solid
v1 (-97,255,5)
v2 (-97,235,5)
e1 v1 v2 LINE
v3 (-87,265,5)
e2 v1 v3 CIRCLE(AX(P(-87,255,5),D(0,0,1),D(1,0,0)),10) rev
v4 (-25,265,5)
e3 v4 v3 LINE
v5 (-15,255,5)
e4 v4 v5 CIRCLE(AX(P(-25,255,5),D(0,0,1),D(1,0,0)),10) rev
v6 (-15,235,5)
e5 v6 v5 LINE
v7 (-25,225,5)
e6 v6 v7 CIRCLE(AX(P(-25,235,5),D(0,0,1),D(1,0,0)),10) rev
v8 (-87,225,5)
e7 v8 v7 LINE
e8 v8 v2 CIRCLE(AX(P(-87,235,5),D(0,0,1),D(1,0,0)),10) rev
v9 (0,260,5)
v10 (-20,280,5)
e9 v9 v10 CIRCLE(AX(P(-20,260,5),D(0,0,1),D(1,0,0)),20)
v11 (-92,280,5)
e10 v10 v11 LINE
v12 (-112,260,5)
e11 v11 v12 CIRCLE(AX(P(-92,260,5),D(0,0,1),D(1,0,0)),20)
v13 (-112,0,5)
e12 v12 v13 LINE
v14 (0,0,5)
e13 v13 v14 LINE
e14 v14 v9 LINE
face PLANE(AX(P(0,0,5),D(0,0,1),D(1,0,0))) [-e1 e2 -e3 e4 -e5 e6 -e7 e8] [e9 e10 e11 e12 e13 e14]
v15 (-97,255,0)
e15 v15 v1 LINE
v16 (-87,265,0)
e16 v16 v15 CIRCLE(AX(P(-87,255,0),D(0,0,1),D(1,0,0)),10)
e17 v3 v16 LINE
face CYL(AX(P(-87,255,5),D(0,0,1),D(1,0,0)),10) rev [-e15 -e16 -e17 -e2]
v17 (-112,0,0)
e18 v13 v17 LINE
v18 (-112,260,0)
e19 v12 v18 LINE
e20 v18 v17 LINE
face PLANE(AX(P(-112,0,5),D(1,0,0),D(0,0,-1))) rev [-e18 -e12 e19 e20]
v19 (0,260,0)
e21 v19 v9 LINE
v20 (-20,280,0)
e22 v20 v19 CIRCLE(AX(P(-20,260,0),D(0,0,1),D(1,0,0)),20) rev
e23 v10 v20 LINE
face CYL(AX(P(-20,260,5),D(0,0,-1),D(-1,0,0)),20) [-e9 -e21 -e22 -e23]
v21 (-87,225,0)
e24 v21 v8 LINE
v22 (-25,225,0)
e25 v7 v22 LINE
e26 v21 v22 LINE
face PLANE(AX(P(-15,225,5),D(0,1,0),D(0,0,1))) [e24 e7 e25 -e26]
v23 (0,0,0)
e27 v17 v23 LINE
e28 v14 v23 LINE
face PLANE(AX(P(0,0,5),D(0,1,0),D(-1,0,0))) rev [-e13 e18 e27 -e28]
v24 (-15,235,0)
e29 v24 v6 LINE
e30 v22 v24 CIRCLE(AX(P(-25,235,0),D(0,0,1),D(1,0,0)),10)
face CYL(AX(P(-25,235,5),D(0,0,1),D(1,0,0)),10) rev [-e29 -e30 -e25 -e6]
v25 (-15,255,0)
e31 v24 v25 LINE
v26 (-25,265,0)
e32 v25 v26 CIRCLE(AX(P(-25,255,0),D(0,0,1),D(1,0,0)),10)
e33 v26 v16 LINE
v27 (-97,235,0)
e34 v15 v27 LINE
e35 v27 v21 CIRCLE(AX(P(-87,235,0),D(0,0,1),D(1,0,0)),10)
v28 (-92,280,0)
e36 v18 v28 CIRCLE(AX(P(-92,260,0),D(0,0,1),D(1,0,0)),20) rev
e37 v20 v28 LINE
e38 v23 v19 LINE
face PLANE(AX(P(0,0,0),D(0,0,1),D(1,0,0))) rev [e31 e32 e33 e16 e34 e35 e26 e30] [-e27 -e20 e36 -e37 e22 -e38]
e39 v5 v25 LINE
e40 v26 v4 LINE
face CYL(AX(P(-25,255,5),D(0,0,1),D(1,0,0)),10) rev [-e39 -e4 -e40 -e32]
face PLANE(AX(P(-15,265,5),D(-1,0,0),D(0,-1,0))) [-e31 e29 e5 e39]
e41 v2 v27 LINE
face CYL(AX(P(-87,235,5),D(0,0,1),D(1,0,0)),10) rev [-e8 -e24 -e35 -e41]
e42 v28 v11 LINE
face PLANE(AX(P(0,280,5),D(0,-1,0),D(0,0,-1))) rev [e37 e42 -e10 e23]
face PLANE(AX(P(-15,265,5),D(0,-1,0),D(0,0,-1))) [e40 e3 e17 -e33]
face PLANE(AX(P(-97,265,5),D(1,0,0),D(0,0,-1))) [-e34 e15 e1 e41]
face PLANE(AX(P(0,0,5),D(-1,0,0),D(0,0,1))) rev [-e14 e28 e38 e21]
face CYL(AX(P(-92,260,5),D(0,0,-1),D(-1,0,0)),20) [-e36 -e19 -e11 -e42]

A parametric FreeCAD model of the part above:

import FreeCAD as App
import Part
import Sketcher
from FreeCAD import Vector


def edges_at(feature, points):
    """Names of the edges that pass closest to the given points."""
    edges = feature.Shape.Edges
    near = lambda p: min(range(len(edges)), key=lambda i: edges[i].distToShape(Part.Vertex(*p))[0])
    return sorted({f"Edge{near(p) + 1}" for p in points})

doc = App.newDocument("Part")
body = doc.addObject("PartDesign::Body", "Body")

# Sketch on XY plane
sketch1 = body.newObject("Sketcher::SketchObject", "Sketch")
sketch1.AttachmentSupport = (doc.getObject("XY_Plane"), [""])
sketch1.MapMode = "FlatFace"
sketch1.addGeometry([
    Part.LineSegment(Vector(-112, 280, 0), Vector(-112, 0, 0)),  # 0
    Part.LineSegment(Vector(-112, 0, 0), Vector(0, 0, 0)),  # 1
    Part.LineSegment(Vector(0, 0, 0), Vector(0, 280, 0)),  # 2
    Part.LineSegment(Vector(0, 280, 0), Vector(-112, 280, 0)),  # 3
    Part.LineSegment(Vector(-15, 225, 0), Vector(-97, 225, 0)),  # 4
    Part.LineSegment(Vector(-97, 225, 0), Vector(-97, 265, 0)),  # 5
    Part.LineSegment(Vector(-97, 265, 0), Vector(-15, 265, 0)),  # 6
    Part.LineSegment(Vector(-15, 265, 0), Vector(-15, 225, 0)),  # 7
], False)
sketch1.addConstraint([
    Sketcher.Constraint("Coincident", 0, 2, 1, 1),
    Sketcher.Constraint("Coincident", 1, 2, 2, 1),
    Sketcher.Constraint("Coincident", 2, 2, 3, 1),
    Sketcher.Constraint("Coincident", 3, 2, 0, 1),
    Sketcher.Constraint("Coincident", 4, 2, 5, 1),
    Sketcher.Constraint("Coincident", 5, 2, 6, 1),
    Sketcher.Constraint("Coincident", 6, 2, 7, 1),
    Sketcher.Constraint("Coincident", 7, 2, 4, 1),
    Sketcher.Constraint("Vertical", 0),
    Sketcher.Constraint("Horizontal", 1),
    Sketcher.Constraint("Vertical", 2),
    Sketcher.Constraint("Horizontal", 3),
    Sketcher.Constraint("Horizontal", 4),
    Sketcher.Constraint("Vertical", 5),
    Sketcher.Constraint("Horizontal", 6),
    Sketcher.Constraint("Vertical", 7),
    Sketcher.Constraint("Coincident", 1, 2, -1, 1),
    Sketcher.Constraint("DistanceX", 1, 1, 1, 2, 112.0),
    Sketcher.Constraint("DistanceX", 4, 2, 4, 1, 82.0),
    Sketcher.Constraint("DistanceY", 0, 2, 0, 1, 280.0),
    Sketcher.Constraint("DistanceY", 5, 1, 5, 2, 40.0),
    Sketcher.Constraint("DistanceX", 4, 2, -1, 1, 97.0),
    Sketcher.Constraint("DistanceY", -1, 1, 4, 2, 225.0),
])
pad1 = body.newObject("PartDesign::Pad", "Pad")
pad1.Profile = sketch1
pad1.Length = 5
doc.recompute()

fillet = body.newObject("PartDesign::Fillet", "Fillet")
fillet.Base = (pad1, edges_at(pad1, [(-112, 280, 2.5), (0, 280, 2.5)]))
fillet.Radius = 20
doc.recompute()

fillet2 = body.newObject("PartDesign::Fillet", "Fillet001")
fillet2.Base = (fillet, edges_at(fillet, [
    (-15, 225, 2.5),
    (-15, 265, 2.5),
    (-97, 265, 2.5),
    (-97, 225, 2.5),
]))
fillet2.Radius = 10

doc.recompute()
